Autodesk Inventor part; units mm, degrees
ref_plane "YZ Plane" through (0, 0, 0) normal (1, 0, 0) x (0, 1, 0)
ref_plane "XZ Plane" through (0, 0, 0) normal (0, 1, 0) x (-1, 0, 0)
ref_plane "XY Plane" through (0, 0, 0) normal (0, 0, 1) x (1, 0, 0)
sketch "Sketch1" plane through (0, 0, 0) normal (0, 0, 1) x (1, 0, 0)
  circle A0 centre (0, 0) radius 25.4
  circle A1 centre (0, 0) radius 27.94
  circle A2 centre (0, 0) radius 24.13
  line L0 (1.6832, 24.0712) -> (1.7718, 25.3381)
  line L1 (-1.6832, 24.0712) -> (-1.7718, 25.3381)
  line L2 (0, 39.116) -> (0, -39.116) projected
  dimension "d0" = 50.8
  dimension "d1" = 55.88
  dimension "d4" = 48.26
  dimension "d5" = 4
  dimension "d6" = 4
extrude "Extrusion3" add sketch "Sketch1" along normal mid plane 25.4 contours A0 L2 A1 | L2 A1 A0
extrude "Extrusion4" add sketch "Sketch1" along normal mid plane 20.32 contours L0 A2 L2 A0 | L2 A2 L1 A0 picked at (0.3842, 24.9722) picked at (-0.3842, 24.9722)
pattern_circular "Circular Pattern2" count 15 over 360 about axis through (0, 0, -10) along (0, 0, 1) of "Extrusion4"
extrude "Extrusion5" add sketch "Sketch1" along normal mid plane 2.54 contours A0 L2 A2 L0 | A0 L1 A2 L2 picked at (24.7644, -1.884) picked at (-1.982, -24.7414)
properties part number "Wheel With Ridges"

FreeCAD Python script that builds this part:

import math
import FreeCAD as App
import Part
import Sketcher
from FreeCAD import Vector
Q = App.Units.Quantity

doc = App.newDocument("Part")
params = doc.addObject("Spreadsheet::Sheet", "Params")
for row, (alias, value) in enumerate([
    ("sketch1_diameter", "2 in"),
    ("sketch1_diameter2", "2.2 in"),
    ("pad1_length", "1 in"),
    ("sketch2_radius", "1 in"),
    ("sketch2_radius2", "0.95 in"),
    ("pad2_length", "0.8 in"),
    ("sketch3_radius", "1 in"),
    ("sketch3_radius2", "0.95 in"),
    ("pad3_length", "0.1 in"),
], start=1):
    params.set(f"A{row}", alias)
    params.set(f"B{row}", "=" + value)
    params.setAlias(f"B{row}", alias)

body = doc.addObject("PartDesign::Body", "Body")

sketch1 = body.newObject("Sketcher::SketchObject", "Sketch")
sketch1.AttachmentSupport = (doc.getObject("XY_Plane"), [""])
sketch1.MapMode = "FlatFace"
sketch1.addGeometry([
    Part.Circle(Vector(0, 0, 0), Vector(0, 0, 1), 28),
    Part.Circle(Vector(0, 0, 0), Vector(0, 0, 1), 25),
], False)
sketch1.addConstraint([
    Sketcher.Constraint("Coincident", 0, 3, -1, 1),
    Sketcher.Constraint("Coincident", 1, 3, -1, 1),
    Sketcher.Constraint("Diameter", 1, Q("2 in")),
    Sketcher.Constraint("Diameter", 0, Q("2.2 in")),
])
sketch1.setExpression("Constraints[2]", "Params.sketch1_diameter")
sketch1.setExpression("Constraints[3]", "Params.sketch1_diameter2")
pad1 = body.newObject("PartDesign::Pad", "Pad")
pad1.Profile = sketch1
pad1.setExpression("Length", "Params.pad1_length")
pad1.Midplane = True

sketch2 = body.newObject("Sketcher::SketchObject", "Sketch001")
sketch2.AttachmentSupport = (doc.getObject("XY_Plane"), [""])
sketch2.MapMode = "FlatFace"
sketch2.addGeometry([
    Part.LineSegment(Vector(1.7, 24.1, 0), Vector(1.8, 25.3, 0)),
    Part.ArcOfCircle(Part.Circle(Vector(0, 0, 0), Vector(0, 0, 1), 25.4), math.radians(86), math.radians(94)),
    Part.LineSegment(Vector(-1.8, 25.3, 0), Vector(-1.7, 24.1, 0)),
    Part.ArcOfCircle(Part.Circle(Vector(0, 0, 0), Vector(0, 0, 1), 24.1), math.radians(86), math.radians(94)),
], False)
sketch2.addConstraint([
    Sketcher.Constraint("Coincident", 0, 2, 1, 1),
    Sketcher.Constraint("Coincident", 1, 2, 2, 1),
    Sketcher.Constraint("Coincident", 2, 2, 3, 2),
    Sketcher.Constraint("Coincident", 3, 1, 0, 1),
    Sketcher.Constraint("Coincident", 1, 3, -1, 1),
    Sketcher.Constraint("Coincident", 3, 3, -1, 1),
    Sketcher.Constraint("Horizontal", 0, 2, 1, 2),
    Sketcher.Constraint("Horizontal", 2, 2, 3, 1),
    Sketcher.Constraint("Radius", 1, Q("1 in")),
    Sketcher.Constraint("Radius", 3, Q("0.95 in")),
    Sketcher.Constraint("Angle", 0, Q("85.9996 deg")),
    Sketcher.Constraint("DistanceX", 1, 2, 0, 2, Q("0.1395 in")),
])
sketch2.setExpression("Constraints[8]", "Params.sketch2_radius")
sketch2.setExpression("Constraints[9]", "Params.sketch2_radius2")
pad2 = body.newObject("PartDesign::Pad", "Pad001")
pad2.Profile = sketch2
pad2.setExpression("Length", "Params.pad2_length")
pad2.Midplane = True
doc.recompute()

polarpattern = body.newObject("PartDesign::PolarPattern", "PolarPattern")
polarpattern.Originals = [pad2]
polarpattern.Axis = (doc.getObject("Z_Axis"), [""])
polarpattern.Angle = 360
polarpattern.Occurrences = 15
body.Tip = polarpattern

sketch3 = body.newObject("Sketcher::SketchObject", "Sketch002")
sketch3.AttachmentSupport = (doc.getObject("XY_Plane"), [""])
sketch3.MapMode = "FlatFace"
sketch3.addGeometry([
    Part.LineSegment(Vector(1.8, 25.3, 0), Vector(1.7, 24.1, 0)),
    Part.ArcOfCircle(Part.Circle(Vector(0, 0, 0), Vector(0, 0, 1), 24.1), math.radians(94), math.radians(446)),
    Part.LineSegment(Vector(-1.7, 24.1, 0), Vector(-1.8, 25.3, 0)),
    Part.ArcOfCircle(Part.Circle(Vector(0, 0, 0), Vector(0, 0, 1), 25.4), math.radians(94), math.radians(446)),
], False)
sketch3.addConstraint([
    Sketcher.Constraint("Coincident", 0, 2, 1, 2),
    Sketcher.Constraint("Coincident", 1, 1, 2, 1),
    Sketcher.Constraint("Coincident", 2, 2, 3, 1),
    Sketcher.Constraint("Coincident", 3, 2, 0, 1),
    Sketcher.Constraint("Coincident", 1, 3, -1, 1),
    Sketcher.Constraint("Coincident", 3, 3, -1, 1),
    Sketcher.Constraint("Horizontal", 0, 2, 1, 1),
    Sketcher.Constraint("Horizontal", 2, 2, 3, 2),
    Sketcher.Constraint("Radius", 3, Q("1 in")),
    Sketcher.Constraint("Radius", 1, Q("0.95 in")),
    Sketcher.Constraint("Angle", 0, Q("-94.0004 deg")),
    Sketcher.Constraint("DistanceX", 2, 2, 3, 2, Q("0.1395 in")),
])
sketch3.setExpression("Constraints[8]", "Params.sketch3_radius")
sketch3.setExpression("Constraints[9]", "Params.sketch3_radius2")
pad3 = body.newObject("PartDesign::Pad", "Pad002")
pad3.Profile = sketch3
pad3.setExpression("Length", "Params.pad3_length")
pad3.Midplane = True

doc.recompute()
